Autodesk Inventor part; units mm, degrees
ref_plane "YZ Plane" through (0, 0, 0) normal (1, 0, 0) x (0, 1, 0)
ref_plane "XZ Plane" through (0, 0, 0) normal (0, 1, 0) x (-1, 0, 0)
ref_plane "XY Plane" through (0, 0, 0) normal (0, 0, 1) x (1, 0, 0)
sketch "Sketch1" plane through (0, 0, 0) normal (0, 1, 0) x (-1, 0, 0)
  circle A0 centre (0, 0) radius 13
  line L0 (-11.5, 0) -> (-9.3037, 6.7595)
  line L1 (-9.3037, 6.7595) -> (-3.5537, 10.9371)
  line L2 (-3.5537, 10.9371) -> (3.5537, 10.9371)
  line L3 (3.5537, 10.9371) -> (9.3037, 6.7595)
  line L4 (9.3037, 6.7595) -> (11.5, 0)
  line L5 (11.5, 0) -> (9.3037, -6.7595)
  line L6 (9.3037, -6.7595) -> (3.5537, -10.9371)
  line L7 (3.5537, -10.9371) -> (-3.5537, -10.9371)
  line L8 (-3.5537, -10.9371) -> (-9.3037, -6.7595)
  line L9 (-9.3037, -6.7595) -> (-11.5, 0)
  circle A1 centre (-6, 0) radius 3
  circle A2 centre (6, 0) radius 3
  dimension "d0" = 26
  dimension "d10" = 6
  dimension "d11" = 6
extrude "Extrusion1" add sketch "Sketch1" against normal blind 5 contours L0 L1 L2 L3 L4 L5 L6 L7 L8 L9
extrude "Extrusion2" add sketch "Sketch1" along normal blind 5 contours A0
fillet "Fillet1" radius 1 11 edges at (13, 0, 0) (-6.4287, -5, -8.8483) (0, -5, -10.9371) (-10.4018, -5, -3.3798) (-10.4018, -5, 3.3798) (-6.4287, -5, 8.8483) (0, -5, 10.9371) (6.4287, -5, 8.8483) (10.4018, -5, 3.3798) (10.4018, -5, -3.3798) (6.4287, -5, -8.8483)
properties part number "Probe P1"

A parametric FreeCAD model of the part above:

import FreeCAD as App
import Part
import Sketcher
Q = App.Units.Quantity


def edges_at(feature, points):
    """Names of the edges that pass closest to the given points."""
    edges = feature.Shape.Edges
    near = lambda p: min(range(len(edges)), key=lambda i: edges[i].distToShape(Part.Vertex(*p))[0])
    return sorted({f"Edge{near(p) + 1}" for p in points})

doc = App.newDocument("Part")
body = doc.addObject("PartDesign::Body", "Body")
body.AllowCompound = True

sketch1 = body.newObject("Sketcher::SketchObject", "Sketch")
sketch1.AttachmentSupport = (doc.getObject("XZ_Plane"), [""])
sketch1.MapMode = "FlatFace"
sketch1.addGeometry([
    Part.LineSegment(App.Vector(9.3, 6.8, 0), App.Vector(11.5, 0, 0)),
    Part.LineSegment(App.Vector(11.5, 0, 0), App.Vector(9.3, -6.8, 0)),
    Part.LineSegment(App.Vector(9.3, -6.8, 0), App.Vector(3.6, -10.9, 0)),
    Part.LineSegment(App.Vector(3.6, -10.9, 0), App.Vector(-3.6, -10.9, 0)),
    Part.LineSegment(App.Vector(-3.6, -10.9, 0), App.Vector(-9.3, -6.8, 0)),
    Part.LineSegment(App.Vector(-9.3, -6.8, 0), App.Vector(-11.5, 0, 0)),
    Part.LineSegment(App.Vector(-11.5, 0, 0), App.Vector(-9.3, 6.8, 0)),
    Part.LineSegment(App.Vector(-9.3, 6.8, 0), App.Vector(-3.6, 10.9, 0)),
    Part.LineSegment(App.Vector(-3.6, 10.9, 0), App.Vector(3.6, 10.9, 0)),
    Part.LineSegment(App.Vector(3.6, 10.9, 0), App.Vector(9.3, 6.8, 0)),
    Part.Circle(App.Vector(6, 0, 0), App.Vector(0, 0, 1), 3),
    Part.Circle(App.Vector(-6, 0, 0), App.Vector(0, 0, 1), 3),
], False)
sketch1.addConstraint([
    Sketcher.Constraint("Coincident", 0, 2, 1, 1),
    Sketcher.Constraint("Coincident", 1, 2, 2, 1),
    Sketcher.Constraint("Coincident", 2, 2, 3, 1),
    Sketcher.Constraint("Coincident", 3, 2, 4, 1),
    Sketcher.Constraint("Coincident", 4, 2, 5, 1),
    Sketcher.Constraint("Coincident", 5, 2, 6, 1),
    Sketcher.Constraint("Coincident", 6, 2, 7, 1),
    Sketcher.Constraint("Coincident", 7, 2, 8, 1),
    Sketcher.Constraint("Coincident", 8, 2, 9, 1),
    Sketcher.Constraint("Coincident", 9, 2, 0, 1),
    Sketcher.Constraint("Horizontal", 3),
    Sketcher.Constraint("Horizontal", 8),
    Sketcher.Constraint("Equal", 10, 11),
    Sketcher.Constraint("Symmetric", 10, 3, 11, 3, -1, 1),
    Sketcher.Constraint("Symmetric", 0, 2, 5, 2, -1, 1),
    Sketcher.Constraint("Symmetric", 1, 2, 6, 2, -1, 1),
    Sketcher.Constraint("Symmetric", 2, 2, 7, 2, -1, 1),
    Sketcher.Constraint("Symmetric", 4, 2, 9, 2, -1, 1),
    Sketcher.Constraint("Symmetric", 1, 2, 4, 2, -2),
    Sketcher.Constraint("PointOnObject", 10, 3, -1),
    Sketcher.Constraint("PointOnObject", 0, 2, -1),
    Sketcher.Constraint("Parallel", 4, 9),
    Sketcher.Constraint("Vertical", 3, 2, 7, 2),
    Sketcher.Constraint("Equal", 1, 2),
    Sketcher.Constraint("Diameter", 10, 6.0),
    Sketcher.Constraint("DistanceX", -1, 1, 10, 3, 6.0),
    Sketcher.Constraint("Angle", 0, Q("-72 deg")),
    Sketcher.Constraint("Angle", 2, Q("-144.0001 deg")),
    Sketcher.Constraint("DistanceX", -1, 1, 0, 2, 11.5),
    Sketcher.Constraint("DistanceX", 2, 2, 1, 2, 5.75),
])
pad1 = body.newObject("PartDesign::Pad", "Pad")
pad1.Profile = sketch1
pad1.Length = 5

sketch2 = body.newObject("Sketcher::SketchObject", "Sketch001")
sketch2.AttachmentSupport = (doc.getObject("XZ_Plane"), [""])
sketch2.MapMode = "FlatFace"
sketch2.addGeometry([
    Part.Circle(App.Vector(0, 0, 0), App.Vector(0, 0, 1), 13),
    Part.LineSegment(App.Vector(9, -7, 0), App.Vector(12, 0, 0)),
    Part.LineSegment(App.Vector(12, 0, 0), App.Vector(9, 7, 0)),
    Part.LineSegment(App.Vector(9, 7, 0), App.Vector(4, 11, 0)),
    Part.LineSegment(App.Vector(4, 11, 0), App.Vector(-4, 11, 0)),
    Part.LineSegment(App.Vector(-4, 11, 0), App.Vector(-9, 7, 0)),
    Part.LineSegment(App.Vector(-9, 7, 0), App.Vector(-12, 0, 0)),
    Part.LineSegment(App.Vector(-12, 0, 0), App.Vector(-9, -7, 0)),
    Part.LineSegment(App.Vector(-9, -7, 0), App.Vector(-4, -11, 0)),
    Part.LineSegment(App.Vector(-4, -11, 0), App.Vector(4, -11, 0)),
    Part.LineSegment(App.Vector(4, -11, 0), App.Vector(9, -7, 0)),
], False)
sketch2.addConstraint([
    Sketcher.Constraint("Coincident", 1, 2, 2, 1),
    Sketcher.Constraint("Coincident", 2, 2, 3, 1),
    Sketcher.Constraint("Coincident", 3, 2, 4, 1),
    Sketcher.Constraint("Coincident", 4, 2, 5, 1),
    Sketcher.Constraint("Coincident", 5, 2, 6, 1),
    Sketcher.Constraint("Coincident", 6, 2, 7, 1),
    Sketcher.Constraint("Coincident", 7, 2, 8, 1),
    Sketcher.Constraint("Coincident", 8, 2, 9, 1),
    Sketcher.Constraint("Coincident", 9, 2, 10, 1),
    Sketcher.Constraint("Coincident", 10, 2, 1, 1),
    Sketcher.Constraint("Horizontal", 4),
    Sketcher.Constraint("Horizontal", 9),
    Sketcher.Constraint("Coincident", 0, 3, -1, 1),
    Sketcher.Constraint("Symmetric", 1, 2, 6, 2, -1, 1),
    Sketcher.Constraint("Symmetric", 2, 2, 7, 2, -1, 1),
    Sketcher.Constraint("Symmetric", 3, 2, 8, 2, -1, 1),
    Sketcher.Constraint("Symmetric", 5, 2, 10, 2, -1, 1),
    Sketcher.Constraint("Symmetric", 2, 2, 5, 2, -2),
    Sketcher.Constraint("PointOnObject", 1, 2, -1),
    Sketcher.Constraint("Parallel", 5, 10),
    Sketcher.Constraint("Vertical", 4, 2, 8, 2),
    Sketcher.Constraint("Equal", 2, 3),
    Sketcher.Constraint("Diameter", 0, 26.0),
    Sketcher.Constraint("Angle", 1, Q("72 deg")),
    Sketcher.Constraint("Angle", 3, Q("144.0001 deg")),
    Sketcher.Constraint("DistanceX", -1, 1, 1, 2, 11.5),
    Sketcher.Constraint("DistanceX", 3, 2, 2, 2, 5.75),
])
pad2 = body.newObject("PartDesign::Pad", "Pad001")
pad2.Profile = sketch2
pad2.Length = 5
pad2.Reversed = True
doc.recompute()

fillet = body.newObject("PartDesign::Fillet", "Fillet")
fillet.Base = (pad2, edges_at(pad2, [
    (13, 0, 0),
    (-6.429, -5, -8.848),
    (0, -5, -10.937),
    (-10.402, -5, -3.38),
    (-10.402, -5, 3.38),
    (-6.429, -5, 8.848),
    (0, -5, 10.937),
    (6.429, -5, 8.848),
    (10.402, -5, 3.38),
    (10.402, -5, -3.38),
    (6.429, -5, -8.848),
]))
fillet.Radius = 1

doc.recompute()
